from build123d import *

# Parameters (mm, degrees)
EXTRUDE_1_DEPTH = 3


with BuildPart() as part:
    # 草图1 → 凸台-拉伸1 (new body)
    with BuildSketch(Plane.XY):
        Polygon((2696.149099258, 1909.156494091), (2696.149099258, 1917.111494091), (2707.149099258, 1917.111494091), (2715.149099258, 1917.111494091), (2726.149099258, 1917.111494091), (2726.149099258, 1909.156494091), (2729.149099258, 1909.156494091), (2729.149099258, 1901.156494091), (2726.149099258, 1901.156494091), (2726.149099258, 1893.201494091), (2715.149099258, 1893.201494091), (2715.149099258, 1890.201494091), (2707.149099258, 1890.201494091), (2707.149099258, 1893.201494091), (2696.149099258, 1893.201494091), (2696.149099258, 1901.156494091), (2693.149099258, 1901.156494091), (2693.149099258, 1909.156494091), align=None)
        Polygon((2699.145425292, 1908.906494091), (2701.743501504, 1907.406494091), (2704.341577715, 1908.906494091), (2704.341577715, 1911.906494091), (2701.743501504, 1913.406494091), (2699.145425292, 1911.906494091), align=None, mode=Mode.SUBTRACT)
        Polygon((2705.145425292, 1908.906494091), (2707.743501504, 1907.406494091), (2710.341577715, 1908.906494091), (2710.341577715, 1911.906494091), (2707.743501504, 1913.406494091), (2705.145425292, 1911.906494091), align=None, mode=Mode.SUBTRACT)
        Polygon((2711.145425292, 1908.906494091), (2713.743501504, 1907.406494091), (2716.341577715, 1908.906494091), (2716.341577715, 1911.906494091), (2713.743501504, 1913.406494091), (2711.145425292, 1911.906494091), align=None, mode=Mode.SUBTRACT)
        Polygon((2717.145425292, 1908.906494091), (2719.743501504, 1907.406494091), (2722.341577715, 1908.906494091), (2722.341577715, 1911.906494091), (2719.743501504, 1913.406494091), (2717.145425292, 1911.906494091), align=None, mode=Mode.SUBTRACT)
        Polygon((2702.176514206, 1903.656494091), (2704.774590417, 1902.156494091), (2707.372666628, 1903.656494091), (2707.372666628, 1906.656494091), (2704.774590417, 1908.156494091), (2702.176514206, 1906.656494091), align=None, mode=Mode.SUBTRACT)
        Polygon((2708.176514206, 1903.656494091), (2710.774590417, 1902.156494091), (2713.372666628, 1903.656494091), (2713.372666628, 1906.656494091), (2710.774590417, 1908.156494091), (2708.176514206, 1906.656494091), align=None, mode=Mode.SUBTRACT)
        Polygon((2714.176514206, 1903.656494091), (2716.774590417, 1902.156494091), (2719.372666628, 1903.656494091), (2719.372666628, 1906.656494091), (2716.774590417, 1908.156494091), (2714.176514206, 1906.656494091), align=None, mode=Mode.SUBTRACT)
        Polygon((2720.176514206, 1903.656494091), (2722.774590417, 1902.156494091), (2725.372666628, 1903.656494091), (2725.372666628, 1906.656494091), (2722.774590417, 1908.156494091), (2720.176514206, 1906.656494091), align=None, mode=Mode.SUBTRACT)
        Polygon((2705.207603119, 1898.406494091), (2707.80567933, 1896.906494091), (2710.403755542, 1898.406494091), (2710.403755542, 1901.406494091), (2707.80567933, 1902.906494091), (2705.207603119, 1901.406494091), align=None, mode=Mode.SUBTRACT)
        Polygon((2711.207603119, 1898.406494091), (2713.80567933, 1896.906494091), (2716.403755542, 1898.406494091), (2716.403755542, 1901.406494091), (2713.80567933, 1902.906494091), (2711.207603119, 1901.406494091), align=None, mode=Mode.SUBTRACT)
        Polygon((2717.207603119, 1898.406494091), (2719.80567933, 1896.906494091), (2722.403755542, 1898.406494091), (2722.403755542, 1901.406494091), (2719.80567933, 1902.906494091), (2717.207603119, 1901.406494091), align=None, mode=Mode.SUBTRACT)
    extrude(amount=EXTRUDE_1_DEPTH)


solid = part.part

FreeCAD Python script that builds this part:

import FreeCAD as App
import Part
import Sketcher

V = App.Vector
Q = App.Units.Quantity


def add_polygon(sketch, points):
    """Adds a closed chain of lines whose ends are joined by coincident constraints."""
    first, n = sketch.GeometryCount, len(points)
    for a, b in zip(points, points[1:] + points[:1]):
        sketch.addGeometry(Part.LineSegment(App.Vector(*a, 0), App.Vector(*b, 0)), False)
    for i in range(n):
        sketch.addConstraint(Sketcher.Constraint("Coincident", first + i, 2, first + (i + 1) % n, 1))

doc = App.newDocument("Part")
body = doc.addObject("PartDesign::Body", "Body")

# Sketch on XY plane
sketch1 = doc.addObject("Sketcher::SketchObject", "Sketch")
body.addObject(sketch1)
sketch1.AttachmentSupport = (doc.XY_Plane, [""])
sketch1.MapMode = "FlatFace"
add_polygon(sketch1, [(2696.149099, 1917.111494), (2696.149099, 1909.156494), (2693.149099, 1909.156494), (2693.149099, 1901.156494), (2696.149099, 1901.156494), (2696.149099, 1893.201494), (2707.149099, 1893.201494), (2707.149099, 1890.201494), (2715.149099, 1890.201494), (2715.149099, 1893.201494), (2726.149099, 1893.201494), (2726.149099, 1901.156494), (2729.149099, 1901.156494), (2729.149099, 1909.156494), (2726.149099, 1909.156494), (2726.149099, 1917.111494)])  # lines 0-15
add_polygon(sketch1, [(2717.207603, 1898.406494), (2717.207603, 1901.406494), (2719.805679, 1902.906494), (2722.403756, 1901.406494), (2722.403756, 1898.406494), (2719.805679, 1896.906494)])  # lines 16-21
add_polygon(sketch1, [(2711.207603, 1898.406494), (2711.207603, 1901.406494), (2713.805679, 1902.906494), (2716.403756, 1901.406494), (2716.403756, 1898.406494), (2713.805679, 1896.906494)])  # lines 22-27
add_polygon(sketch1, [(2705.207603, 1898.406494), (2705.207603, 1901.406494), (2707.805679, 1902.906494), (2710.403756, 1901.406494), (2710.403756, 1898.406494), (2707.805679, 1896.906494)])  # lines 28-33
add_polygon(sketch1, [(2720.176514, 1903.656494), (2720.176514, 1906.656494), (2722.77459, 1908.156494), (2725.372667, 1906.656494), (2725.372667, 1903.656494), (2722.77459, 1902.156494)])  # lines 34-39
add_polygon(sketch1, [(2714.176514, 1903.656494), (2714.176514, 1906.656494), (2716.77459, 1908.156494), (2719.372667, 1906.656494), (2719.372667, 1903.656494), (2716.77459, 1902.156494)])  # lines 40-45
add_polygon(sketch1, [(2717.145425, 1908.906494), (2717.145425, 1911.906494), (2719.743502, 1913.406494), (2722.341578, 1911.906494), (2722.341578, 1908.906494), (2719.743502, 1907.406494)])  # lines 46-51
add_polygon(sketch1, [(2711.145425, 1908.906494), (2711.145425, 1911.906494), (2713.743502, 1913.406494), (2716.341578, 1911.906494), (2716.341578, 1908.906494), (2713.743502, 1907.406494)])  # lines 52-57
add_polygon(sketch1, [(2708.176514, 1903.656494), (2708.176514, 1906.656494), (2710.77459, 1908.156494), (2713.372667, 1906.656494), (2713.372667, 1903.656494), (2710.77459, 1902.156494)])  # lines 58-63
add_polygon(sketch1, [(2702.176514, 1903.656494), (2702.176514, 1906.656494), (2704.77459, 1908.156494), (2707.372667, 1906.656494), (2707.372667, 1903.656494), (2704.77459, 1902.156494)])  # lines 64-69
add_polygon(sketch1, [(2705.145425, 1908.906494), (2705.145425, 1911.906494), (2707.743502, 1913.406494), (2710.341578, 1911.906494), (2710.341578, 1908.906494), (2707.743502, 1907.406494)])  # lines 70-75
add_polygon(sketch1, [(2699.145425, 1908.906494), (2699.145425, 1911.906494), (2701.743502, 1913.406494), (2704.341578, 1911.906494), (2704.341578, 1908.906494), (2701.743502, 1907.406494)])  # lines 76-81
sketch1.addConstraint([
    Sketcher.Constraint("Vertical", 0),
    Sketcher.Constraint("Horizontal", 1),
    Sketcher.Constraint("Vertical", 2),
    Sketcher.Constraint("Horizontal", 3),
    Sketcher.Constraint("Vertical", 4),
    Sketcher.Constraint("Horizontal", 5),
    Sketcher.Constraint("Vertical", 6),
    Sketcher.Constraint("Horizontal", 7),
    Sketcher.Constraint("Vertical", 8),
    Sketcher.Constraint("Horizontal", 9),
    Sketcher.Constraint("Vertical", 10),
    Sketcher.Constraint("Horizontal", 11),
    Sketcher.Constraint("Vertical", 12),
    Sketcher.Constraint("Horizontal", 13),
    Sketcher.Constraint("Vertical", 14),
    Sketcher.Constraint("Horizontal", 15),
    Sketcher.Constraint("Vertical", 16),
    Sketcher.Constraint("Vertical", 19),
    Sketcher.Constraint("Vertical", 22),
    Sketcher.Constraint("Vertical", 25),
    Sketcher.Constraint("Vertical", 28),
    Sketcher.Constraint("Vertical", 31),
    Sketcher.Constraint("Vertical", 34),
    Sketcher.Constraint("Vertical", 37),
    Sketcher.Constraint("Vertical", 40),
    Sketcher.Constraint("Vertical", 43),
    Sketcher.Constraint("Vertical", 46),
    Sketcher.Constraint("Vertical", 49),
    Sketcher.Constraint("Vertical", 52),
    Sketcher.Constraint("Vertical", 55),
    Sketcher.Constraint("Vertical", 58),
    Sketcher.Constraint("Vertical", 61),
    Sketcher.Constraint("Vertical", 64),
    Sketcher.Constraint("Vertical", 67),
    Sketcher.Constraint("Vertical", 70),
    Sketcher.Constraint("Vertical", 73),
    Sketcher.Constraint("Vertical", 76),
    Sketcher.Constraint("Vertical", 79),
    Sketcher.Constraint("Parallel", 17, 20),
    Sketcher.Constraint("Parallel", 18, 21),
    Sketcher.Constraint("Parallel", 20, 23),
    Sketcher.Constraint("Parallel", 21, 24),
    Sketcher.Constraint("Parallel", 23, 26),
    Sketcher.Constraint("Parallel", 24, 27),
    Sketcher.Constraint("Parallel", 26, 29),
    Sketcher.Constraint("Parallel", 27, 30),
    Sketcher.Constraint("Parallel", 29, 32),
    Sketcher.Constraint("Parallel", 30, 33),
    Sketcher.Constraint("Parallel", 32, 35),
    Sketcher.Constraint("Parallel", 33, 36),
    Sketcher.Constraint("Parallel", 35, 38),
    Sketcher.Constraint("Parallel", 36, 39),
    Sketcher.Constraint("Parallel", 38, 41),
    Sketcher.Constraint("Parallel", 39, 42),
    Sketcher.Constraint("Parallel", 41, 44),
    Sketcher.Constraint("Parallel", 42, 45),
    Sketcher.Constraint("Parallel", 44, 47),
    Sketcher.Constraint("Parallel", 45, 48),
    Sketcher.Constraint("Parallel", 47, 50),
    Sketcher.Constraint("Parallel", 48, 51),
    Sketcher.Constraint("Parallel", 50, 53),
    Sketcher.Constraint("Parallel", 51, 54),
    Sketcher.Constraint("Parallel", 53, 56),
    Sketcher.Constraint("Parallel", 54, 57),
    Sketcher.Constraint("Parallel", 56, 59),
    Sketcher.Constraint("Parallel", 57, 60),
    Sketcher.Constraint("Parallel", 59, 62),
    Sketcher.Constraint("Parallel", 60, 63),
    Sketcher.Constraint("Parallel", 62, 65),
    Sketcher.Constraint("Parallel", 63, 66),
    Sketcher.Constraint("Parallel", 65, 68),
    Sketcher.Constraint("Parallel", 66, 69),
    Sketcher.Constraint("Parallel", 68, 71),
    Sketcher.Constraint("Parallel", 69, 72),
    Sketcher.Constraint("Parallel", 71, 74),
    Sketcher.Constraint("Parallel", 72, 75),
    Sketcher.Constraint("Parallel", 74, 77),
    Sketcher.Constraint("Parallel", 75, 78),
    Sketcher.Constraint("Parallel", 77, 80),
    Sketcher.Constraint("Parallel", 78, 81),
    Sketcher.Constraint("Horizontal", 5, 2, 8, 2),
    Sketcher.Constraint("Horizontal", 3, 2, 10, 2),
    Sketcher.Constraint("Horizontal", 1, 2, 12, 2),
    Sketcher.Constraint("Horizontal", 16, 2, 18, 2),
    Sketcher.Constraint("Horizontal", 19, 2, 21, 2),
    Sketcher.Constraint("Horizontal", 18, 2, 22, 2),
    Sketcher.Constraint("Horizontal", 17, 2, 23, 2),
    Sketcher.Constraint("Horizontal", 22, 2, 24, 2),
    Sketcher.Constraint("Horizontal", 21, 2, 25, 2),
    Sketcher.Constraint("Horizontal", 20, 2, 26, 2),
    Sketcher.Constraint("Horizontal", 24, 2, 28, 2),
    Sketcher.Constraint("Horizontal", 23, 2, 29, 2),
    Sketcher.Constraint("Horizontal", 28, 2, 30, 2),
    Sketcher.Constraint("Horizontal", 27, 2, 31, 2),
    Sketcher.Constraint("Horizontal", 26, 2, 32, 2),
    Sketcher.Constraint("Horizontal", 34, 2, 36, 2),
    Sketcher.Constraint("Horizontal", 37, 2, 39, 2),
    Sketcher.Constraint("Horizontal", 36, 2, 40, 2),
    Sketcher.Constraint("Horizontal", 35, 2, 41, 2),
    Sketcher.Constraint("Horizontal", 40, 2, 42, 2),
    Sketcher.Constraint("Horizontal", 39, 2, 43, 2),
    Sketcher.Constraint("Horizontal", 38, 2, 44, 2),
    Sketcher.Constraint("Horizontal", 46, 2, 48, 2),
    Sketcher.Constraint("Horizontal", 49, 2, 51, 2),
    Sketcher.Constraint("Horizontal", 48, 2, 52, 2),
    Sketcher.Constraint("Horizontal", 47, 2, 53, 2),
    Sketcher.Constraint("Horizontal", 52, 2, 54, 2),
    Sketcher.Constraint("Horizontal", 51, 2, 55, 2),
    Sketcher.Constraint("Horizontal", 50, 2, 56, 2),
    Sketcher.Constraint("Horizontal", 42, 2, 58, 2),
    Sketcher.Constraint("Horizontal", 41, 2, 59, 2),
    Sketcher.Constraint("Horizontal", 58, 2, 60, 2),
    Sketcher.Constraint("Horizontal", 45, 2, 61, 2),
    Sketcher.Constraint("Horizontal", 44, 2, 62, 2),
    Sketcher.Constraint("Horizontal", 60, 2, 64, 2),
    Sketcher.Constraint("Horizontal", 59, 2, 65, 2),
    Sketcher.Constraint("Horizontal", 64, 2, 66, 2),
    Sketcher.Constraint("Horizontal", 63, 2, 67, 2),
    Sketcher.Constraint("Horizontal", 62, 2, 68, 2),
    Sketcher.Constraint("Horizontal", 54, 2, 70, 2),
    Sketcher.Constraint("Horizontal", 53, 2, 71, 2),
    Sketcher.Constraint("Horizontal", 70, 2, 72, 2),
    Sketcher.Constraint("Horizontal", 57, 2, 73, 2),
    Sketcher.Constraint("Horizontal", 56, 2, 74, 2),
    Sketcher.Constraint("Horizontal", 72, 2, 76, 2),
    Sketcher.Constraint("Horizontal", 71, 2, 77, 2),
    Sketcher.Constraint("Horizontal", 76, 2, 78, 2),
    Sketcher.Constraint("Horizontal", 75, 2, 79, 2),
    Sketcher.Constraint("Horizontal", 74, 2, 80, 2),
    Sketcher.Constraint("Vertical", 0, 2, 3, 2),
    Sketcher.Constraint("Vertical", 10, 2, 13, 2),
    Sketcher.Constraint("Vertical", 17, 2, 20, 2),
    Sketcher.Constraint("Equal", 5, 9),
    Sketcher.Constraint("Equal", 3, 11),
    Sketcher.Constraint("Equal", 7, 2),
    Sketcher.Constraint("Equal", 0, 4),
    Sketcher.Constraint("Equal", 13, 6),
    Sketcher.Constraint("Equal", 8, 16),
    Sketcher.Constraint("Equal", 31, 34),
    Sketcher.Constraint("Equal", 43, 46),
    Sketcher.Constraint("Equal", 33, 35),
    Sketcher.Constraint("Equal", 45, 47),
    Sketcher.Constraint("DistanceX", 1, 2, 1, 1, Q("3 mm")),
    Sketcher.Constraint("DistanceX", 5, 1, 5, 2, Q("11 mm")),
    Sketcher.Constraint("DistanceX", 7, 1, 7, 2, Q("8 mm")),
    Sketcher.Constraint("Angle", 17, Q("30 deg")),
    Sketcher.Constraint("Distance", 17, Q("3 mm")),
    Sketcher.Constraint("DistanceY", 0, 2, 0, 1, Q("7.955 mm")),
    Sketcher.Constraint("DistanceX", -1, 1, 0, 2, Q("2696.149099 mm")),
    Sketcher.Constraint("DistanceX", -1, 1, 47, 2, Q("2719.743502 mm")),
    Sketcher.Constraint("DistanceX", -1, 1, 53, 2, Q("2713.743502 mm")),
    Sketcher.Constraint("DistanceX", -1, 1, 71, 2, Q("2707.743502 mm")),
    Sketcher.Constraint("DistanceX", -1, 1, 77, 2, Q("2701.743502 mm")),
    Sketcher.Constraint("DistanceX", -1, 1, 17, 2, Q("2719.805679 mm")),
    Sketcher.Constraint("DistanceX", -1, 1, 23, 2, Q("2713.805679 mm")),
    Sketcher.Constraint("DistanceX", -1, 1, 29, 2, Q("2707.805679 mm")),
    Sketcher.Constraint("DistanceX", -1, 1, 35, 2, Q("2722.77459 mm")),
    Sketcher.Constraint("DistanceX", -1, 1, 41, 2, Q("2716.77459 mm")),
    Sketcher.Constraint("DistanceX", -1, 1, 59, 2, Q("2710.77459 mm")),
    Sketcher.Constraint("DistanceX", -1, 1, 65, 2, Q("2704.77459 mm")),
    Sketcher.Constraint("DistanceY", -1, 1, 0, 2, Q("1909.156494 mm")),
    Sketcher.Constraint("DistanceY", -1, 1, 16, 2, Q("1901.406494 mm")),
    Sketcher.Constraint("DistanceY", -1, 1, 34, 2, Q("1906.656494 mm")),
    Sketcher.Constraint("DistanceY", -1, 1, 46, 2, Q("1911.906494 mm")),
])
pad1 = doc.addObject("PartDesign::Pad", "Pad")
body.addObject(pad1)
pad1.Profile = sketch1
pad1.Length = 3

doc.recompute()
